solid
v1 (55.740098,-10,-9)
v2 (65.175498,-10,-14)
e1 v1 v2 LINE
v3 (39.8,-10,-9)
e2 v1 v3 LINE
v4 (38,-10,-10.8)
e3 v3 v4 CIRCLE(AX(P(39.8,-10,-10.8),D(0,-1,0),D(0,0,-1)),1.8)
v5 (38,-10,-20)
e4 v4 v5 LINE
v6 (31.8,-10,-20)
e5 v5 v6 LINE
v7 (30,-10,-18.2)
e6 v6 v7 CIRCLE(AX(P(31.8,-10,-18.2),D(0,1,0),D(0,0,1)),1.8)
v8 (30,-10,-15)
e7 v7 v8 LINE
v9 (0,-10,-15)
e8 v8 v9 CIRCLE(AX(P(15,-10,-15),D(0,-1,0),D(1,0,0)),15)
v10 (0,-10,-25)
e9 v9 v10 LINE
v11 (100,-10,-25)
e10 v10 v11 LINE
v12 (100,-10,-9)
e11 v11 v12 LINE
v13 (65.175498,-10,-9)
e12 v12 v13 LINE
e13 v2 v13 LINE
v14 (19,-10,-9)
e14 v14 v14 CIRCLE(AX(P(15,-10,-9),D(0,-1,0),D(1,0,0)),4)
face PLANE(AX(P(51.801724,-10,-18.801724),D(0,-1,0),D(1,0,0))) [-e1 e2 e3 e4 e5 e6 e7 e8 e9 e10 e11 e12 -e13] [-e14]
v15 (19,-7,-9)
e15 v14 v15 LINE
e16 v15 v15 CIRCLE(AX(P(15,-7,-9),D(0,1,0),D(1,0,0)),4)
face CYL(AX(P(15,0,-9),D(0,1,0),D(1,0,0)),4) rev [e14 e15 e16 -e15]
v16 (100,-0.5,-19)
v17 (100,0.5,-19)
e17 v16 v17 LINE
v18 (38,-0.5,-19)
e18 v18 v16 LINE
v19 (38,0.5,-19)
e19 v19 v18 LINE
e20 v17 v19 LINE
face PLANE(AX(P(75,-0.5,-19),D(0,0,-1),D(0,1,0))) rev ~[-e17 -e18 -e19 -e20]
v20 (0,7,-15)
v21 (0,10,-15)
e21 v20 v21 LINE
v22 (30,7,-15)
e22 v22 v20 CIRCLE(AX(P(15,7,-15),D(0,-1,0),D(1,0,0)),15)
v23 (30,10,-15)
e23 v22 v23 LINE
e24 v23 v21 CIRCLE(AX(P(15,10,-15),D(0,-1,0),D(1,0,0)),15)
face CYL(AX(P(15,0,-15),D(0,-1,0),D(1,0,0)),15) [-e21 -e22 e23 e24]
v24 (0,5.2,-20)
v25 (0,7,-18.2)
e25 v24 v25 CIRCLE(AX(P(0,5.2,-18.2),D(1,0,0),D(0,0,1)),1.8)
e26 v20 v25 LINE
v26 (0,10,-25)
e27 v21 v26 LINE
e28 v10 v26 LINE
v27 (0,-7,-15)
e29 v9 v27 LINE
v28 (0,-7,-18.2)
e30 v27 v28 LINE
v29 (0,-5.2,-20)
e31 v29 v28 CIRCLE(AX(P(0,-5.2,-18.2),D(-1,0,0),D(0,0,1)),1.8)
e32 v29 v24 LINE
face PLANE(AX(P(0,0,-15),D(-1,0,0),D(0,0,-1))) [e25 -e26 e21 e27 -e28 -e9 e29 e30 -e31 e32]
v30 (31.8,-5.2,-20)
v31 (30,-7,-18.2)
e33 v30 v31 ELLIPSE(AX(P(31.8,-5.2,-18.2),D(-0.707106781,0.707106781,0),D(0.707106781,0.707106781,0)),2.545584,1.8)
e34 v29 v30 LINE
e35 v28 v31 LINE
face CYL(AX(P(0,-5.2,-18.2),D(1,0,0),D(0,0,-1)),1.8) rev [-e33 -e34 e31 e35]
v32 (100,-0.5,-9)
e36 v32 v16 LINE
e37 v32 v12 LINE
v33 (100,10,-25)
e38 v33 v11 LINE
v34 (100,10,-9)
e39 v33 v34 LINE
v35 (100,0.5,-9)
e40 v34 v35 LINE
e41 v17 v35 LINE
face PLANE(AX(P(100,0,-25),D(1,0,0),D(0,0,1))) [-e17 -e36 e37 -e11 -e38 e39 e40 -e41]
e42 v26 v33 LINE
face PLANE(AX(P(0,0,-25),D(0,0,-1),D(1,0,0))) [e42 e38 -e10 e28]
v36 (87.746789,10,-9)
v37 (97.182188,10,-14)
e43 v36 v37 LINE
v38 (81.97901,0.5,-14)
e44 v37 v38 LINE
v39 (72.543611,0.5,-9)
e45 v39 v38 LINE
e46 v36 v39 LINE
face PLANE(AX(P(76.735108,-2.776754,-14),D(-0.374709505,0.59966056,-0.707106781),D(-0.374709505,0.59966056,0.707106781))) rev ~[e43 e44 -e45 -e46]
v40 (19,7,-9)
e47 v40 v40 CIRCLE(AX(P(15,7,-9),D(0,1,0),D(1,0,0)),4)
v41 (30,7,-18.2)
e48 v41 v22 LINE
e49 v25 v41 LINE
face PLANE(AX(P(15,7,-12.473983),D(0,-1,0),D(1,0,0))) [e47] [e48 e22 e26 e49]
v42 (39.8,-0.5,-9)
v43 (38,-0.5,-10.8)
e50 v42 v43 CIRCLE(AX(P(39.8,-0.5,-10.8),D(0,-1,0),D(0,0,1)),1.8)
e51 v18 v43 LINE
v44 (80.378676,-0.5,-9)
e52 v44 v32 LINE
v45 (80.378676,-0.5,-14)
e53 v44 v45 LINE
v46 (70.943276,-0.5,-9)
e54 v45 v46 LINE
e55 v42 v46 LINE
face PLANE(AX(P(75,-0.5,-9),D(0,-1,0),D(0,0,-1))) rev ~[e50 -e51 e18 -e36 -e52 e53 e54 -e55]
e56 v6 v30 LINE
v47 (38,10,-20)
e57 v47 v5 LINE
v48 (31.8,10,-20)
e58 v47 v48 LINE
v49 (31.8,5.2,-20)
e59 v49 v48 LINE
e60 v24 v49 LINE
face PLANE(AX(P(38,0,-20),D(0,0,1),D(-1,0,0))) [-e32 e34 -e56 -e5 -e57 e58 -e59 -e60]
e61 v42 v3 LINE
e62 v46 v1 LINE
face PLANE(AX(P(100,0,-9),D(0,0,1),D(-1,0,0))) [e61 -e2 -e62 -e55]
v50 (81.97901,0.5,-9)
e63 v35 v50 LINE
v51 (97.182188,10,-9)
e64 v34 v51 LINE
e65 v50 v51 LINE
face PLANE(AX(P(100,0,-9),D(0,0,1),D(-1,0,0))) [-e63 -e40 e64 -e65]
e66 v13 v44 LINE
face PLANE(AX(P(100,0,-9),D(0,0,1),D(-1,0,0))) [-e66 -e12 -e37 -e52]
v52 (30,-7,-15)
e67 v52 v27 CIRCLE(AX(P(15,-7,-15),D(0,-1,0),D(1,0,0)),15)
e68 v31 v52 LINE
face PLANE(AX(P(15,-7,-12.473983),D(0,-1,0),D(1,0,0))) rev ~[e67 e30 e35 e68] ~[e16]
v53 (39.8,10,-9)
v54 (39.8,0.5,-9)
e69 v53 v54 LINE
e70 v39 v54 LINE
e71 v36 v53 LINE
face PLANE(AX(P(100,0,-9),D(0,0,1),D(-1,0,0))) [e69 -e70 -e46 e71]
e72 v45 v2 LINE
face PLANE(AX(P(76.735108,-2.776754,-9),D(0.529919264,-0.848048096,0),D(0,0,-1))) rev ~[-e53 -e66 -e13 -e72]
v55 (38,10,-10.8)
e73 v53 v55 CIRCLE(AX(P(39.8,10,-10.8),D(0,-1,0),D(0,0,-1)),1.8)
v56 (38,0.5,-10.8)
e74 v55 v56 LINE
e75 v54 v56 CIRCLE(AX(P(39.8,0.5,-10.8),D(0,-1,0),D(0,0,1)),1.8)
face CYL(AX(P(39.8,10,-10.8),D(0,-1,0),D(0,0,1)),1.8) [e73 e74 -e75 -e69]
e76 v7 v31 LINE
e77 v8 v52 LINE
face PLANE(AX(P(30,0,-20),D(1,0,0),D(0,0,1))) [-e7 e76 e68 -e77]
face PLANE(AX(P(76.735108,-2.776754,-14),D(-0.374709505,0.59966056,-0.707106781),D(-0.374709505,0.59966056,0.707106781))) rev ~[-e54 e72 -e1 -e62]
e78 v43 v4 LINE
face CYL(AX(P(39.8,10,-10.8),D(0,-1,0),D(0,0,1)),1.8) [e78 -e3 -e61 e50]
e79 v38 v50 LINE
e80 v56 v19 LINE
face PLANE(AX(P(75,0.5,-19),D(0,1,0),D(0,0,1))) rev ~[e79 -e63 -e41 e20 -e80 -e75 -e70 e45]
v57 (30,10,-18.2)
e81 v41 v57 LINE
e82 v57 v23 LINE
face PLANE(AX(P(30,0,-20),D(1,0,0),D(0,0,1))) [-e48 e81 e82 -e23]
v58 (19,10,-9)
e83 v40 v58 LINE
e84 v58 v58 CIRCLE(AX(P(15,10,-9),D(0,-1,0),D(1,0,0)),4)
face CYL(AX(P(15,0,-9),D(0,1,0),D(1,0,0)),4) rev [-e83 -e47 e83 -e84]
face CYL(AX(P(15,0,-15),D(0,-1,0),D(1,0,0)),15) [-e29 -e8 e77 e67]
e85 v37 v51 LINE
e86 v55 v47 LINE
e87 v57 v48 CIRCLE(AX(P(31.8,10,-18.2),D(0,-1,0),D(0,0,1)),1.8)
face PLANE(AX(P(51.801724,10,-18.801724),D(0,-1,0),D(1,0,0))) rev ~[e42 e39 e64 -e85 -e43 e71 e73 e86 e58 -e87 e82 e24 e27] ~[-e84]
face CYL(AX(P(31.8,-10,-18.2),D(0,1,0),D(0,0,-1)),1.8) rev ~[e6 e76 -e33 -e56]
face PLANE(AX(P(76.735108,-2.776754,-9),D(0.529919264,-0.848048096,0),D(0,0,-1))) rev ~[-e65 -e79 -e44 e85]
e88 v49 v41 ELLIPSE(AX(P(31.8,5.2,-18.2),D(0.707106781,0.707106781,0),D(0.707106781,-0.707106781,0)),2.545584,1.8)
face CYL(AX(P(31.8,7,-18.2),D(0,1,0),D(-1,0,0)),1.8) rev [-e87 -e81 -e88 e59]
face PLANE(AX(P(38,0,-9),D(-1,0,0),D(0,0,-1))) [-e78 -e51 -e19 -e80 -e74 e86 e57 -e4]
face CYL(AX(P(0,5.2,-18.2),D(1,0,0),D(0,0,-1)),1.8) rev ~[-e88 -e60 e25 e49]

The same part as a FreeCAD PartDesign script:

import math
import FreeCAD as App
import Part
import Sketcher
from FreeCAD import Vector


def edges_at(feature, points):
    """Names of the edges that pass closest to the given points."""
    edges = feature.Shape.Edges
    near = lambda p: min(range(len(edges)), key=lambda i: edges[i].distToShape(Part.Vertex(*p))[0])
    return sorted({f"Edge{near(p) + 1}" for p in points})


def add_polygon(sketch, points):
    """Adds a closed chain of lines whose ends are joined by coincident constraints."""
    first, n = sketch.GeometryCount, len(points)
    for a, b in zip(points, points[1:] + points[:1]):
        sketch.addGeometry(Part.LineSegment(App.Vector(*a, 0), App.Vector(*b, 0)), False)
    for i in range(n):
        sketch.addConstraint(Sketcher.Constraint("Coincident", first + i, 2, first + (i + 1) % n, 1))

doc = App.newDocument("Part")
params = doc.addObject("Spreadsheet::Sheet", "Params")
for row, (alias, value) in enumerate([
    ("sketch1_diameter", "8 mm"),
    ("sketch1_radius", "15 mm"),
    ("sketch1_width", "100 mm"),
    ("sketch1_width2", "62 mm"),
    ("sketch1_height", "16 mm"),
    ("pad1_length", "20 mm"),
    ("sketch2_radius", "15 mm"),
    ("sketch2_height", "5 mm"),
    ("pocket1_length", "14 mm"),
    ("fillet_radius", "1.8 mm"),
    ("sketch3_width", "5 mm"),
    ("pocket2_length", "50 mm"),
    ("sketch4_width", "1 mm"),
    ("sketch4_height", "10 mm"),
    ("pocket3_length", "80 mm"),
], start=1):
    params.set(f"A{row}", alias)
    params.set(f"B{row}", "=" + value)
    params.setAlias(f"B{row}", alias)

body = doc.addObject("PartDesign::Body", "Body")

sketch1 = body.newObject("Sketcher::SketchObject", "Sketch")
sketch1.AttachmentSupport = (doc.getObject("XZ_Plane"), [""])
sketch1.MapMode = "FlatFace"
sketch1.addGeometry(Part.LineSegment(Vector(0, -25, 0), Vector(100, -25, 0)), False)
sketch1.addGeometry(Part.LineSegment(Vector(100, -25, 0), Vector(100, -9, 0)), False)
sketch1.addGeometry(Part.LineSegment(Vector(100, -9, 0), Vector(38, -9, 0)), False)
sketch1.addGeometry(Part.LineSegment(Vector(38, -9, 0), Vector(38, -20, 0)), False)
sketch1.addGeometry(Part.LineSegment(Vector(38, -20, 0), Vector(30, -20, 0)), False)
sketch1.addGeometry(Part.LineSegment(Vector(30, -20, 0), Vector(30, -15, 0)), False)
sketch1.addGeometry(Part.ArcOfCircle(Part.Circle(Vector(15, -15, 0), Vector(0, 0, 1), 15), math.radians(0), math.radians(180)), False)
sketch1.addGeometry(Part.LineSegment(Vector(0, -15, 0), Vector(0, -25, 0)), False)
sketch1.addGeometry(Part.Circle(Vector(15, -9, 0), Vector(0, 0, 1), 4), False)
sketch1.addConstraint(Sketcher.Constraint("Coincident", 0, 2, 1, 1))
sketch1.addConstraint(Sketcher.Constraint("Coincident", 1, 2, 2, 1))
sketch1.addConstraint(Sketcher.Constraint("Coincident", 2, 2, 3, 1))
sketch1.addConstraint(Sketcher.Constraint("Coincident", 3, 2, 4, 1))
sketch1.addConstraint(Sketcher.Constraint("Coincident", 4, 2, 5, 1))
sketch1.addConstraint(Sketcher.Constraint("Tangent", 5, 2, 6, 1))
sketch1.addConstraint(Sketcher.Constraint("Tangent", 6, 2, 7, 1))
sketch1.addConstraint(Sketcher.Constraint("Coincident", 7, 2, 0, 1))
sketch1.addConstraint(Sketcher.Constraint("Horizontal", 0))
sketch1.addConstraint(Sketcher.Constraint("Vertical", 1))
sketch1.addConstraint(Sketcher.Constraint("Horizontal", 2))
sketch1.addConstraint(Sketcher.Constraint("Vertical", 3))
sketch1.addConstraint(Sketcher.Constraint("Horizontal", 4))
sketch1.addConstraint(Sketcher.Constraint("Vertical", 5))
sketch1.addConstraint(Sketcher.Constraint("Vertical", 7))
sketch1.addConstraint(Sketcher.Constraint("PointOnObject", 6, 2, -2))
sketch1.addConstraint(Sketcher.Constraint("Horizontal", 8, 3, 1, 2))
sketch1.addConstraint(Sketcher.Constraint("Vertical", 6, 3, 8, 3))
sketch1.addConstraint(Sketcher.Constraint("Diameter", 8, 8.0))
sketch1.addConstraint(Sketcher.Constraint("Radius", 6, 15.0))
sketch1.addConstraint(Sketcher.Constraint("DistanceX", 0, 1, 0, 2, 100.0))
sketch1.addConstraint(Sketcher.Constraint("DistanceX", 2, 2, 2, 1, 62.0))
sketch1.addConstraint(Sketcher.Constraint("DistanceY", 1, 1, 1, 2, 16.0))
sketch1.addConstraint(Sketcher.Constraint("DistanceY", 3, 2, 3, 1, 11.0))
sketch1.addConstraint(Sketcher.Constraint("DistanceY", 5, 1, 5, 2, 5.0))
sketch1.addConstraint(Sketcher.Constraint("DistanceY", 6, 3, -1, 1, 15.0))
sketch1.setExpression("Constraints[18]", "Params.sketch1_diameter")
sketch1.setExpression("Constraints[19]", "Params.sketch1_radius")
sketch1.setExpression("Constraints[20]", "Params.sketch1_width")
sketch1.setExpression("Constraints[21]", "Params.sketch1_width2")
sketch1.setExpression("Constraints[22]", "Params.sketch1_height")
pad1 = body.newObject("PartDesign::Pad", "Pad")
pad1.Profile = sketch1
pad1.setExpression("Length", "Params.pad1_length")
pad1.Midplane = True

sketch2 = body.newObject("Sketcher::SketchObject", "Sketch001")
sketch2.AttachmentSupport = (doc.getObject("XZ_Plane"), [""])
sketch2.MapMode = "FlatFace"
sketch2.addGeometry(Part.LineSegment(Vector(30, -20, 0), Vector(30, -15, 0)), False)
sketch2.addGeometry(Part.ArcOfCircle(Part.Circle(Vector(15, -15, 0), Vector(0, 0, 1), 15), math.radians(0), math.radians(180)), False)
sketch2.addGeometry(Part.LineSegment(Vector(0, -15, 0), Vector(0, -20, 0)), False)
sketch2.addGeometry(Part.LineSegment(Vector(0, -20, 0), Vector(30, -20, 0)), False)
sketch2.addConstraint(Sketcher.Constraint("Tangent", 0, 2, 1, 1))
sketch2.addConstraint(Sketcher.Constraint("Tangent", 1, 2, 2, 1))
sketch2.addConstraint(Sketcher.Constraint("Coincident", 2, 2, 3, 1))
sketch2.addConstraint(Sketcher.Constraint("Coincident", 3, 2, 0, 1))
sketch2.addConstraint(Sketcher.Constraint("Vertical", 0))
sketch2.addConstraint(Sketcher.Constraint("Vertical", 2))
sketch2.addConstraint(Sketcher.Constraint("Horizontal", 3))
sketch2.addConstraint(Sketcher.Constraint("PointOnObject", 1, 2, -2))
sketch2.addConstraint(Sketcher.Constraint("Radius", 1, 15.0))
sketch2.addConstraint(Sketcher.Constraint("DistanceY", 0, 1, 0, 2, 5.0))
sketch2.addConstraint(Sketcher.Constraint("DistanceY", 1, 3, -1, 1, 15.0))
sketch2.setExpression("Constraints[8]", "Params.sketch2_radius")
sketch2.setExpression("Constraints[9]", "Params.sketch2_height")
pocket1 = body.newObject("PartDesign::Pocket", "Pocket")
pocket1.Profile = sketch2
pocket1.setExpression("Length", "Params.pocket1_length")
pocket1.Midplane = True
doc.recompute()

fillet = body.newObject("PartDesign::Fillet", "Fillet")
fillet.Base = (pocket1, edges_at(pocket1, [
    (15, 7, -20),
    (15, -7, -20),
    (30, -8.5, -20),
    (30, 8.5, -20),
    (38, 0, -9),
]))
fillet.setExpression("Radius", "Params.fillet_radius")

sketch3 = body.newObject("Sketcher::SketchObject", "Sketch002")
sketch3.Placement = App.Placement(Vector(53.938918, 33.704777, 0), App.Rotation(Vector(-0.529919264, 0.848048096, 0), Vector(0, 0, 0.999999999), Vector(0.848048096, 0.529919264, 0), "ZXY"))
add_polygon(sketch3, [(-38, -9), (-43, -9), (-43, -14)])
sketch3.addConstraint(Sketcher.Constraint("Horizontal", 0))
sketch3.addConstraint(Sketcher.Constraint("Vertical", 1))
sketch3.addConstraint(Sketcher.Constraint("Equal", 0, 1))
sketch3.addConstraint(Sketcher.Constraint("DistanceX", 0, 2, 0, 1, 5.0))
sketch3.addConstraint(Sketcher.Constraint("DistanceY", 0, 2, -1, 1, 9.0))
sketch3.addConstraint(Sketcher.Constraint("DistanceX", 0, 2, -1, 1, 43.018233))
sketch3.setExpression("Constraints[6]", "Params.sketch3_width")
pocket2 = body.newObject("PartDesign::Pocket", "Pocket001")
pocket2.Profile = sketch3
pocket2.setExpression("Length", "Params.pocket2_length")
pocket2.Midplane = True

sketch4 = body.newObject("Sketcher::SketchObject", "Sketch003")
sketch4.AttachmentSupport = (doc.getObject("YZ_Plane"), [""])
sketch4.MapMode = "FlatFace"
sketch4.AttachmentOffset = App.Placement(Vector(0, 0, 75), App.Rotation())
add_polygon(sketch4, [(0.5, -9), (-0.5, -9), (-0.5, -19), (0.5, -19)])
sketch4.addConstraint(Sketcher.Constraint("Horizontal", 0))
sketch4.addConstraint(Sketcher.Constraint("Vertical", 1))
sketch4.addConstraint(Sketcher.Constraint("Horizontal", 2))
sketch4.addConstraint(Sketcher.Constraint("Vertical", 3))
sketch4.addConstraint(Sketcher.Constraint("DistanceX", 0, 2, 0, 1, 1.0))
sketch4.addConstraint(Sketcher.Constraint("DistanceY", 1, 2, 1, 1, 10.0))
sketch4.addConstraint(Sketcher.Constraint("DistanceY", 0, 2, -1, 1, 9.0))
sketch4.addConstraint(Sketcher.Constraint("DistanceX", 0, 2, -1, 1, 0.5))
sketch4.setExpression("Constraints[8]", "Params.sketch4_width")
sketch4.setExpression("Constraints[9]", "Params.sketch4_height")
pocket3 = body.newObject("PartDesign::Pocket", "Pocket002")
pocket3.Profile = sketch4
pocket3.setExpression("Length", "Params.pocket3_length")
pocket3.Midplane = True

doc.recompute()
